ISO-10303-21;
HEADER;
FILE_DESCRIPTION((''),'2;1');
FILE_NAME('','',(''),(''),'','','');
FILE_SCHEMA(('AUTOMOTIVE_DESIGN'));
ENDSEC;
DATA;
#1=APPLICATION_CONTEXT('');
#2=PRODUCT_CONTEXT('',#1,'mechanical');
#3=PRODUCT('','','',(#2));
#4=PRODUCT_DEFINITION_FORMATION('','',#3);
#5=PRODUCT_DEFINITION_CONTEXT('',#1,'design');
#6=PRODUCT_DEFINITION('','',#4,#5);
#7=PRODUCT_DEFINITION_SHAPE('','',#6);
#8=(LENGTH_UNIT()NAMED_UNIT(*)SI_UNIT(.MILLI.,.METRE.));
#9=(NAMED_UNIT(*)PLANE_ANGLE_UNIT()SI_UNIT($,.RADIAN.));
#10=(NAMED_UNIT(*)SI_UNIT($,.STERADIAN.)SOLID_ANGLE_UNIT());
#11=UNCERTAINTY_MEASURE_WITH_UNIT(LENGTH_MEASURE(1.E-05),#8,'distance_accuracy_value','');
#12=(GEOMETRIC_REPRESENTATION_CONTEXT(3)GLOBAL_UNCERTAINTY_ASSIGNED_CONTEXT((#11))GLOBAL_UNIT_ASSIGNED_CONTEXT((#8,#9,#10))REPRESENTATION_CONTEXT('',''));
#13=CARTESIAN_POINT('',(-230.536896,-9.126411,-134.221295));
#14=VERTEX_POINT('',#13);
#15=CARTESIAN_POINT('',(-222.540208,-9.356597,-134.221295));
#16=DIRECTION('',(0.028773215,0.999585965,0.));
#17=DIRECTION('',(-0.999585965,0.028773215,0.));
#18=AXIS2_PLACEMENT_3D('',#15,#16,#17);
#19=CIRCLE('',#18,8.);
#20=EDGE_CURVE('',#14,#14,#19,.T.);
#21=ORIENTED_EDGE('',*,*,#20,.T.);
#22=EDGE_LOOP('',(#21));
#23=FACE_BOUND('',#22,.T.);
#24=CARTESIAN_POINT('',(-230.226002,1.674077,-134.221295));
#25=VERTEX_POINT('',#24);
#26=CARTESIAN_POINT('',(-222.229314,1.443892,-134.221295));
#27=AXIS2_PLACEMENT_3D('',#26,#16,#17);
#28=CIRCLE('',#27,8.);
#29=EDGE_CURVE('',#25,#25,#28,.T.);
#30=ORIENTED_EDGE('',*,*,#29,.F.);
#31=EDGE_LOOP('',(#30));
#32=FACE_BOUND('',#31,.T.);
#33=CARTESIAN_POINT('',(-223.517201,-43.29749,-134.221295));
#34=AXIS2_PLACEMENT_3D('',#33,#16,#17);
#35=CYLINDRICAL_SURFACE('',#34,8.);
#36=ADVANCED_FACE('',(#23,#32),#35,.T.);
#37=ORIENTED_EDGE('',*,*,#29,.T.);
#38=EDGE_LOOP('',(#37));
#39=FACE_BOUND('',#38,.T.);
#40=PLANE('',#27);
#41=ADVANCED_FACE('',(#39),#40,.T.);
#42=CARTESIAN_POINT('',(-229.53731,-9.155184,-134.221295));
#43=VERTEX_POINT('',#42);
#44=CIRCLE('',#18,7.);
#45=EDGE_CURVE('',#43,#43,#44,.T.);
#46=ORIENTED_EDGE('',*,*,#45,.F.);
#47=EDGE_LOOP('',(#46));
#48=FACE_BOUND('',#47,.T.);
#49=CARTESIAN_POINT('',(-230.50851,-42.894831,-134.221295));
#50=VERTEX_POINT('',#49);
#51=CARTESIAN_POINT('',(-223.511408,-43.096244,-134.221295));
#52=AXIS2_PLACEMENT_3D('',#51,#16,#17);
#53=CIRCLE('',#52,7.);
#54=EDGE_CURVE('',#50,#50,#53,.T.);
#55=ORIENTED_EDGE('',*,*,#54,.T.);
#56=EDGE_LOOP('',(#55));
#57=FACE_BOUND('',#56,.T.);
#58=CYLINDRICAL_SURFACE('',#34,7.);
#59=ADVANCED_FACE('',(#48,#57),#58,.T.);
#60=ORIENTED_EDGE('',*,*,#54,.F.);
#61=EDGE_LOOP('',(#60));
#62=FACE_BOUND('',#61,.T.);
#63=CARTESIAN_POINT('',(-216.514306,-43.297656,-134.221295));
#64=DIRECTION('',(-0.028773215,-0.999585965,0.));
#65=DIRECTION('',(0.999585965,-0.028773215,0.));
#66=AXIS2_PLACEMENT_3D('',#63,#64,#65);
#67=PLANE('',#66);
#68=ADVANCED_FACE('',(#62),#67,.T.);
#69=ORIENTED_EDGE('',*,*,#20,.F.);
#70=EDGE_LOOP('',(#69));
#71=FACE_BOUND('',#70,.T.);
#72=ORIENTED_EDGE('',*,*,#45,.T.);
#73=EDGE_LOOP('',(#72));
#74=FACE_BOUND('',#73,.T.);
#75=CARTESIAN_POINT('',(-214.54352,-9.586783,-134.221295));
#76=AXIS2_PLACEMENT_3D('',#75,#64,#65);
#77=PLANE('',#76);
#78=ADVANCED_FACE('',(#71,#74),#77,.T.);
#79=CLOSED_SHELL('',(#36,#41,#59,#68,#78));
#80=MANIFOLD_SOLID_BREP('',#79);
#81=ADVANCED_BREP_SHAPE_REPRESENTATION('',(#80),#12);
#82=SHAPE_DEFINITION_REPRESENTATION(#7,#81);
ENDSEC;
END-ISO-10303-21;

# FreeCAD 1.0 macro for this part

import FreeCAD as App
import Part
import Sketcher
Q = App.Units.Quantity

doc = App.newDocument("Part")
body = doc.addObject("PartDesign::Body", "Body")

sketch1 = body.newObject("Sketcher::SketchObject", "Sketch")
sketch1.AttachmentSupport = (doc.getObject("XY_Plane"), [""])
sketch1.MapMode = "FlatFace"
sketch1.AttachmentOffset = App.Placement(App.Vector(0, 0, -134.221295), App.Rotation())
sketch1.addGeometry([
    Part.LineSegment(App.Vector(-216.514306, -43.297656, 0), App.Vector(-223.511408, -43.096244, 0)),
    Part.LineSegment(App.Vector(-223.511408, -43.096244, 0), App.Vector(-222.229314, 1.443892, 0)),
    Part.LineSegment(App.Vector(-222.229314, 1.443892, 0), App.Vector(-214.232627, 1.213706, 0)),
    Part.LineSegment(App.Vector(-214.232627, 1.213706, 0), App.Vector(-214.54352, -9.586783, 0)),
    Part.LineSegment(App.Vector(-214.54352, -9.586783, 0), App.Vector(-215.543106, -9.558009, 0)),
    Part.LineSegment(App.Vector(-215.543106, -9.558009, 0), App.Vector(-216.514306, -43.297656, 0)),
], False)
sketch1.addGeometry(Part.LineSegment(App.Vector(-223.511408, -43.096244, 0), App.Vector(-222.229314, 1.443892, 0)), True)
sketch1.addConstraint([
    Sketcher.Constraint("Coincident", 0, 2, 1, 1),
    Sketcher.Constraint("Coincident", 1, 2, 2, 1),
    Sketcher.Constraint("Coincident", 2, 2, 3, 1),
    Sketcher.Constraint("Coincident", 3, 2, 4, 1),
    Sketcher.Constraint("Coincident", 4, 2, 5, 1),
    Sketcher.Constraint("Coincident", 5, 2, 0, 1),
    Sketcher.Constraint("Coincident", 6, 1, 0, 2),
    Sketcher.Constraint("Coincident", 6, 2, 1, 2),
    Sketcher.Constraint("Distance", 0, Q("7 mm")),
    Sketcher.Constraint("Distance", 2, Q("8 mm")),
    Sketcher.Constraint("Distance", 4, Q("1 mm")),
    Sketcher.Constraint("DistanceY", 4, 2, 1, 2, Q("11.001901 mm")),
    Sketcher.Constraint("DistanceX", 0, 2, 4, 2, Q("7.968302 mm")),
    Sketcher.Constraint("DistanceX", 0, 2, 5, 2, Q("6.997102 mm")),
    Sketcher.Constraint("DistanceX", 0, 2, -1, 1, Q("223.511408 mm")),
    Sketcher.Constraint("DistanceY", -1, 1, 1, 2, Q("1.443892 mm")),
    Sketcher.Constraint("DistanceX", 3, 2, -1, 1, Q("214.54352 mm")),
    Sketcher.Constraint("DistanceX", 0, 2, 2, 2, Q("9.278781 mm")),
    Sketcher.Constraint("DistanceY", 0, 2, 2, 2, Q("44.30995 mm")),
    Sketcher.Constraint("DistanceY", 3, 2, 2, 2, Q("10.800488 mm")),
])
revolution = body.newObject("PartDesign::Revolution", "Revolution")
revolution.Profile = sketch1
revolution.ReferenceAxis = (sketch1, ["Axis0"])
revolution.Angle = 360

doc.recompute()
